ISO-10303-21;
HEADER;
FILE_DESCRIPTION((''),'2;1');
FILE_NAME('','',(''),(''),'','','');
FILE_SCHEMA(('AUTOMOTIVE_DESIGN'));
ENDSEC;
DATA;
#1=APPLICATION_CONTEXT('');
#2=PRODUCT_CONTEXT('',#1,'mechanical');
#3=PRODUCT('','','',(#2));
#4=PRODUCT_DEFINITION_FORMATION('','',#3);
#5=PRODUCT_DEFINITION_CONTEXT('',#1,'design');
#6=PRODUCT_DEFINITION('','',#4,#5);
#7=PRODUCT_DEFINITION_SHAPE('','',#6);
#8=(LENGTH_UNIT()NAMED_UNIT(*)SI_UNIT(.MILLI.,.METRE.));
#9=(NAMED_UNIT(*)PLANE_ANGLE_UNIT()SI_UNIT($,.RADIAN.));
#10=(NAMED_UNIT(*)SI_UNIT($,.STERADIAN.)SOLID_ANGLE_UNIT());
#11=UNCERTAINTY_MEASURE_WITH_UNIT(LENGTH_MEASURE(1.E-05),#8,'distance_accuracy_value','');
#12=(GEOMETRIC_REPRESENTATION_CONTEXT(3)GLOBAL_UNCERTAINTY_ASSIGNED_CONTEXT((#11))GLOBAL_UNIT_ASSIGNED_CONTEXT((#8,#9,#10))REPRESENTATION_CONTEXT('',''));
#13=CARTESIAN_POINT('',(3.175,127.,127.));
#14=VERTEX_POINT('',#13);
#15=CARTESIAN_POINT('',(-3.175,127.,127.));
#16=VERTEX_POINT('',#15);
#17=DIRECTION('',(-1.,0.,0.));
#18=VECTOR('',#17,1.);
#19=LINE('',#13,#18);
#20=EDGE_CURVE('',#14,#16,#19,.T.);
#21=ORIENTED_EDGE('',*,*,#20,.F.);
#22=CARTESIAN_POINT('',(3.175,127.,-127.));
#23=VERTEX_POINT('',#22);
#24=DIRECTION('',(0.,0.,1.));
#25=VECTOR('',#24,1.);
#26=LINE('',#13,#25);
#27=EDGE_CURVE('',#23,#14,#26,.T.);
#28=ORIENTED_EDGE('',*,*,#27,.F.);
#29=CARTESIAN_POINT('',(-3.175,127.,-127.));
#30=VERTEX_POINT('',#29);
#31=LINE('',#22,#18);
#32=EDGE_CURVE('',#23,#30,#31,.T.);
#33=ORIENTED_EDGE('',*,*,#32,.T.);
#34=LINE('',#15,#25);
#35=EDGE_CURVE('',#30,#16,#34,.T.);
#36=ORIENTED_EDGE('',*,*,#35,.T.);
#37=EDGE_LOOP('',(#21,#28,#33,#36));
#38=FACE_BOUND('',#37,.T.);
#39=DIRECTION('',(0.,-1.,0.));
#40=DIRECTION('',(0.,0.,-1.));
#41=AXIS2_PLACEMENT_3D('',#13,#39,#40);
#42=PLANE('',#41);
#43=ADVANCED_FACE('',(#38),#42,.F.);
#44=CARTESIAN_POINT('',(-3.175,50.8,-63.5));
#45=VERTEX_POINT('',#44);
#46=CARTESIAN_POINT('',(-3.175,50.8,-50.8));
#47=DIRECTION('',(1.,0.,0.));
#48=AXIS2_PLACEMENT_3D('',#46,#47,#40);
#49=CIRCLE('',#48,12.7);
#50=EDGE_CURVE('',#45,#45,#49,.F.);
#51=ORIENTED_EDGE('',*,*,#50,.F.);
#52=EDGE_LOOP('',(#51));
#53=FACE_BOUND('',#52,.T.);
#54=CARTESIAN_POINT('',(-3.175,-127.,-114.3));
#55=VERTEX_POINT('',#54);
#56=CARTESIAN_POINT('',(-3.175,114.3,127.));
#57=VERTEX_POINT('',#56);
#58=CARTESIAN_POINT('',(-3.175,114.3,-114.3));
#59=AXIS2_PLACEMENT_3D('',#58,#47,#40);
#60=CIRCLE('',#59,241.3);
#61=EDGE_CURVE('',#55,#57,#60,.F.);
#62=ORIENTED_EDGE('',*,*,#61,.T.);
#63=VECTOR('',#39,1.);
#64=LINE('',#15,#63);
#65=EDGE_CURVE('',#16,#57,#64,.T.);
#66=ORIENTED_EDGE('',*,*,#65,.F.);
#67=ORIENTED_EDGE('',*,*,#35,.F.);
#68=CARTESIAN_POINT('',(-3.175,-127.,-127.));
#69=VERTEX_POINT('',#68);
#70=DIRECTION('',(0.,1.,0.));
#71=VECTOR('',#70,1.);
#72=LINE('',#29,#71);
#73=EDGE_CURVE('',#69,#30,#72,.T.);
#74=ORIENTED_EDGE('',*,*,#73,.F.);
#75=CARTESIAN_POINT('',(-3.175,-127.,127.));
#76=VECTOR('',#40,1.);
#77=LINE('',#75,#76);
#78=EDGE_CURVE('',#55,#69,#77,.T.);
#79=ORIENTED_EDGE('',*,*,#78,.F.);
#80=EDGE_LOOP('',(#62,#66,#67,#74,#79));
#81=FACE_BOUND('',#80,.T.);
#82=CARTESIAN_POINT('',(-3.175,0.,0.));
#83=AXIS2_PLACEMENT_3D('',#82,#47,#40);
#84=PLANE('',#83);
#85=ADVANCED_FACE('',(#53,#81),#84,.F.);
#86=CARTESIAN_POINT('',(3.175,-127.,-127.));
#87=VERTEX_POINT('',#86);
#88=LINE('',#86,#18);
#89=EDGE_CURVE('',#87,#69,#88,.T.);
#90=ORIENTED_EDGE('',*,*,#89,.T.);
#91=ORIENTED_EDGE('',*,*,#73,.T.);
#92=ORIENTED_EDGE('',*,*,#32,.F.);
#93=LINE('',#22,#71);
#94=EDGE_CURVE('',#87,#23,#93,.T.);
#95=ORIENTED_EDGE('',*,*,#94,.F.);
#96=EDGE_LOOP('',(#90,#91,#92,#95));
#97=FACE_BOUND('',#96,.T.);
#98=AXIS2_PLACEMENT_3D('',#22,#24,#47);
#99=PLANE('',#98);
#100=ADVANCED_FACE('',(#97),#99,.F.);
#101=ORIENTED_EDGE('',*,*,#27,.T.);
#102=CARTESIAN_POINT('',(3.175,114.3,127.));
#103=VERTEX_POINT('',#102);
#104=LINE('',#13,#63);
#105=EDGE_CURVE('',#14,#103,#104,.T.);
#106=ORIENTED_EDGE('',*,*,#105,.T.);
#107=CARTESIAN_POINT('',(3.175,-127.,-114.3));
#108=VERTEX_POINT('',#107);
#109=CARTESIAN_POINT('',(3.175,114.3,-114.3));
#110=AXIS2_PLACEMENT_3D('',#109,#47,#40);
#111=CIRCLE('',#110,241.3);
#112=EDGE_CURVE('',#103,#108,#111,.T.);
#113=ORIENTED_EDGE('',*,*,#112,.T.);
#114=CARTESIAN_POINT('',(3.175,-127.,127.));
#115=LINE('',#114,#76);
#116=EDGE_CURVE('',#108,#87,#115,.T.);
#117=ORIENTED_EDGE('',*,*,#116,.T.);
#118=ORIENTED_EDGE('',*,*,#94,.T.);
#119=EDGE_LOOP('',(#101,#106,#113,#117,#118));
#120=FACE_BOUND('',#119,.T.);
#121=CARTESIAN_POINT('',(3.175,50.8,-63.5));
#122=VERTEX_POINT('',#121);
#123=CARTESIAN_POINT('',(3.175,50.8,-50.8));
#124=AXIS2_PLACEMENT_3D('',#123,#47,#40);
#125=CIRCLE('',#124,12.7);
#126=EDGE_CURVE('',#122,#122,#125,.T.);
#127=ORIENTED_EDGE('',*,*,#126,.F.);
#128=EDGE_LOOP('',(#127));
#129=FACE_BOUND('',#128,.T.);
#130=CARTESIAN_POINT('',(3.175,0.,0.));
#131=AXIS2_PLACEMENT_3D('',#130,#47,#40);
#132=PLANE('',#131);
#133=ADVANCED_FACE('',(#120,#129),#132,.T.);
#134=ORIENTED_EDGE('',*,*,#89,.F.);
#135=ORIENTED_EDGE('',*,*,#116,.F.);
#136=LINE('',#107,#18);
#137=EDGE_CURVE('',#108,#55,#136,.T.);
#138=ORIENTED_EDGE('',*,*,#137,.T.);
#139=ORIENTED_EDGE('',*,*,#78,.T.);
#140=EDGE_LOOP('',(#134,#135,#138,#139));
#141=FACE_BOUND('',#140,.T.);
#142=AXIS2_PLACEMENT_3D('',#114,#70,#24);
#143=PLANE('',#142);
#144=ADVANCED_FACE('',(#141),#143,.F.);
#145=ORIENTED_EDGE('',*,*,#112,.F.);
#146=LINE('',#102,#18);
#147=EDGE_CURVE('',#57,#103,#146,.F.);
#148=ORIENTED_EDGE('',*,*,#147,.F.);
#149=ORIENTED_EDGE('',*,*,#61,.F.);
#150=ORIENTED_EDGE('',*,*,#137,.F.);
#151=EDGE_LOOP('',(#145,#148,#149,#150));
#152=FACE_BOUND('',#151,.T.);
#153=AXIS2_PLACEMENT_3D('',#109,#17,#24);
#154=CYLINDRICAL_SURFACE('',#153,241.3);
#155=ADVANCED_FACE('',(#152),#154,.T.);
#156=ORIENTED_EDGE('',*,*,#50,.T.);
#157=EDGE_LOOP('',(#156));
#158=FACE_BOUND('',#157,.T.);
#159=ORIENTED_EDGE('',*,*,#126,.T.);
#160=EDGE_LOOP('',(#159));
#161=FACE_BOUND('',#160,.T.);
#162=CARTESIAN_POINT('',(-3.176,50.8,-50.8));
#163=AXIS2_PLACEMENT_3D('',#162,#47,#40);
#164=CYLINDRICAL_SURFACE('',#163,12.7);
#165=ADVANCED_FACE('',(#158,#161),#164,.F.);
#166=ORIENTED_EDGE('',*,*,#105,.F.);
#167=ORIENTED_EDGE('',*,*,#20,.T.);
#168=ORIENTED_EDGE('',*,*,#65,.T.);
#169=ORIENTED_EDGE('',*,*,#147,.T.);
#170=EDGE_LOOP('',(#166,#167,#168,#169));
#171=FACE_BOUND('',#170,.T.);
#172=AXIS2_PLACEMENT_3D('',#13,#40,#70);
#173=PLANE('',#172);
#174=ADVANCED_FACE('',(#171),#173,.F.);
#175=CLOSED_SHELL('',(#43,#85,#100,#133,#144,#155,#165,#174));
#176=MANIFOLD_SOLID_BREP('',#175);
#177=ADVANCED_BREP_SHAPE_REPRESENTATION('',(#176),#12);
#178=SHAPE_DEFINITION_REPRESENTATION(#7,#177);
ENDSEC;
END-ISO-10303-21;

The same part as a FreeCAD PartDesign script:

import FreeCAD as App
import Part
import Sketcher
Q = App.Units.Quantity


def edges_at(feature, points):
    """Names of the edges that pass closest to the given points."""
    edges = feature.Shape.Edges
    near = lambda p: min(range(len(edges)), key=lambda i: edges[i].distToShape(Part.Vertex(*p))[0])
    return sorted({f"Edge{near(p) + 1}" for p in points})

doc = App.newDocument("Part")
body = doc.addObject("PartDesign::Body", "Body")

sketch1 = doc.addObject("Sketcher::SketchObject", "Sketch")
body.addObject(sketch1)
sketch1.AttachmentSupport = (doc.YZ_Plane, [""])
sketch1.MapMode = "FlatFace"
sketch1.addGeometry(Part.LineSegment(App.Vector(127, 127, 0), App.Vector(-127, 127, 0)), False)
sketch1.addGeometry(Part.LineSegment(App.Vector(-127, 127, 0), App.Vector(-127, -127, 0)), False)
sketch1.addGeometry(Part.LineSegment(App.Vector(-127, -127, 0), App.Vector(127, -127, 0)), False)
sketch1.addGeometry(Part.LineSegment(App.Vector(127, -127, 0), App.Vector(127, 127, 0)), False)
sketch1.addConstraint(Sketcher.Constraint("Coincident", 0, 2, 1, 1))
sketch1.addConstraint(Sketcher.Constraint("Coincident", 1, 2, 2, 1))
sketch1.addConstraint(Sketcher.Constraint("Coincident", 2, 2, 3, 1))
sketch1.addConstraint(Sketcher.Constraint("Coincident", 3, 2, 0, 1))
sketch1.addConstraint(Sketcher.Constraint("Horizontal", 0))
sketch1.addConstraint(Sketcher.Constraint("Vertical", 1))
sketch1.addConstraint(Sketcher.Constraint("Horizontal", 2))
sketch1.addConstraint(Sketcher.Constraint("Vertical", 3))
sketch1.addConstraint(Sketcher.Constraint("Symmetric", 0, 2, 2, 2, -1, 1))
sketch1.addConstraint(Sketcher.Constraint("Equal", 2, 1))
sketch1.addConstraint(Sketcher.Constraint("DistanceX", 0, 2, 0, 1, Q("10 in")))
pad1 = doc.addObject("PartDesign::Pad", "Pad")
body.addObject(pad1)
pad1.Profile = sketch1
pad1.Length = Q("0.25 in")
pad1.Midplane = True
doc.recompute()

fillet = doc.addObject("PartDesign::Fillet", "Fillet")
body.addObject(fillet)
fillet.Base = (pad1, edges_at(pad1, [(0, -127, 127)]))
fillet.Radius = Q("9.5 in")

sketch2 = doc.addObject("Sketcher::SketchObject", "Sketch001")
body.addObject(sketch2)
sketch2.AttachmentSupport = (doc.YZ_Plane, [""])
sketch2.MapMode = "FlatFace"
sketch2.AttachmentOffset = App.Placement(App.Vector(0, 0, 0.125 * 25.4), App.Rotation())
sketch2.addGeometry(Part.Circle(App.Vector(50.8, -50.8, 0), App.Vector(0, 0, 1), 12.7), False)
sketch2.addConstraint(Sketcher.Constraint("Diameter", 0, Q("1 in")))
sketch2.addConstraint(Sketcher.Constraint("DistanceX", -1, 1, 0, 3, Q("2 in")))
sketch2.addConstraint(Sketcher.Constraint("DistanceY", 0, 3, -1, 1, Q("2 in")))
pocket1 = doc.addObject("PartDesign::Pocket", "Pocket")
body.addObject(pocket1)
pocket1.Profile = sketch2
pocket1.Type = "UpToFirst"

doc.recompute()
